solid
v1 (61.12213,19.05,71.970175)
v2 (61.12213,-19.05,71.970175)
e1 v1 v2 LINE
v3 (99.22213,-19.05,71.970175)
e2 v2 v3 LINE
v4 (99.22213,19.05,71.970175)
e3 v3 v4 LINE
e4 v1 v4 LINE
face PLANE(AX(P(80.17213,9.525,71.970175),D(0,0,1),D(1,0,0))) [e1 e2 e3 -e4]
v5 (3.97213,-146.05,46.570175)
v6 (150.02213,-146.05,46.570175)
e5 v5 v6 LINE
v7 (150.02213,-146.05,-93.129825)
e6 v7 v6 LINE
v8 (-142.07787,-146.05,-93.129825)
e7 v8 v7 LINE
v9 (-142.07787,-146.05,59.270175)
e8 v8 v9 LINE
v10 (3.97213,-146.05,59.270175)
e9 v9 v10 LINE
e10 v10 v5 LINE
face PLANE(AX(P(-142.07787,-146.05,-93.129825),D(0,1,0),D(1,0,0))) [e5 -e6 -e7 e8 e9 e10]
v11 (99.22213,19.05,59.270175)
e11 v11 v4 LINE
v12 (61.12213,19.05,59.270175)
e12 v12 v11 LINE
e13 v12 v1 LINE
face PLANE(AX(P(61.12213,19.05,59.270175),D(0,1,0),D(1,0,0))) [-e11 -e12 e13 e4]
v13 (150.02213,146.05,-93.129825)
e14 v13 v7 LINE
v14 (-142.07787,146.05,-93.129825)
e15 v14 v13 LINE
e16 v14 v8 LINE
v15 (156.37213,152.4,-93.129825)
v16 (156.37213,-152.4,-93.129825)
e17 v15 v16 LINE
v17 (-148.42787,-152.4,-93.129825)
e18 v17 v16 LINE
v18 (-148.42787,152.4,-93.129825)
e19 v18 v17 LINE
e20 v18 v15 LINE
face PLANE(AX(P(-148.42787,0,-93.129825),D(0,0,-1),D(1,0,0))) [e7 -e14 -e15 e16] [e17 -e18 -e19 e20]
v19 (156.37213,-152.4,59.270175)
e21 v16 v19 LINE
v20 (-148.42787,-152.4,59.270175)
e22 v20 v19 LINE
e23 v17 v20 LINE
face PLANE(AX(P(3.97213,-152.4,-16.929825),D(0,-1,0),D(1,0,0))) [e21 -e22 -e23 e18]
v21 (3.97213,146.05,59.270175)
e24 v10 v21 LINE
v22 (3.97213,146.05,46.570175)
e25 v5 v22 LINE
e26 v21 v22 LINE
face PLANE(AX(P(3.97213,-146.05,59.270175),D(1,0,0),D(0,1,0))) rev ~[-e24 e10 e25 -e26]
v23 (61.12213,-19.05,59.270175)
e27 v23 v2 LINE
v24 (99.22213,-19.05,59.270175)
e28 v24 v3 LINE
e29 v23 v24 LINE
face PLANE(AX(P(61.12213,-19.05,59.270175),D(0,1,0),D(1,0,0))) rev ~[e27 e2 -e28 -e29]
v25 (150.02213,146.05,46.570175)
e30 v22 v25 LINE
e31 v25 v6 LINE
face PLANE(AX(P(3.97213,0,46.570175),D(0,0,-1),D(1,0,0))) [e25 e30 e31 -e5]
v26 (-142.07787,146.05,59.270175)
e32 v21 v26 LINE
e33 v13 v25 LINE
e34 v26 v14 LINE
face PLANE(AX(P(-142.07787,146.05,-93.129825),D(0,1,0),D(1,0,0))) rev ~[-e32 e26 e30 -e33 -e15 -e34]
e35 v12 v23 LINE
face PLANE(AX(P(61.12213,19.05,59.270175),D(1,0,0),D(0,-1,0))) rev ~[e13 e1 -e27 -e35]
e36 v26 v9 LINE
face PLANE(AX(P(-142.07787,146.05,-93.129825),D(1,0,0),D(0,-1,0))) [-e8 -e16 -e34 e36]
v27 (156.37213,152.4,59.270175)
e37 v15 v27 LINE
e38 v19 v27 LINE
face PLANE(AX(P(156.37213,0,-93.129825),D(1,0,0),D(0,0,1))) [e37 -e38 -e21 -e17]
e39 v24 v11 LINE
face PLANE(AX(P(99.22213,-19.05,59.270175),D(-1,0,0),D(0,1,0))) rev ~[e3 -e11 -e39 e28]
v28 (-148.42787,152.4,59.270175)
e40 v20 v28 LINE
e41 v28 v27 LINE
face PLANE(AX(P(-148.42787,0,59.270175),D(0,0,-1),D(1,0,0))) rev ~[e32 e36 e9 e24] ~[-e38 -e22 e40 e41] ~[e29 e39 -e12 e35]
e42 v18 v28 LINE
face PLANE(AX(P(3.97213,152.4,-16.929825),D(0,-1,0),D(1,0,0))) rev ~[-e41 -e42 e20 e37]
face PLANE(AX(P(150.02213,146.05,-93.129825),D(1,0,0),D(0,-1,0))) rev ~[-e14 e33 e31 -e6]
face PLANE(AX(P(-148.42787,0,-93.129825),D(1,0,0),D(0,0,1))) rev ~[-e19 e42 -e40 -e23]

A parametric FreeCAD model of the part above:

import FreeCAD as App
import Part
import Sketcher
Q = App.Units.Quantity

doc = App.newDocument("Part")
body = doc.addObject("PartDesign::Body", "Body")

# Sketch on XZ plane
sketch1 = body.newObject("Sketcher::SketchObject", "Sketch")
sketch1.AttachmentSupport = (doc.getObject("XZ_Plane"), [""])
sketch1.MapMode = "FlatFace"
sketch1.addGeometry(Part.LineSegment(App.Vector(-148.42787, 59.270175, 0), App.Vector(-148.42787, -93.129825, 0)), False)
sketch1.addGeometry(Part.LineSegment(App.Vector(-148.42787, -93.129825, 0), App.Vector(156.37213, -93.129825, 0)), False)
sketch1.addGeometry(Part.LineSegment(App.Vector(156.37213, -93.129825, 0), App.Vector(156.37213, 59.270175, 0)), False)
sketch1.addGeometry(Part.LineSegment(App.Vector(156.37213, 59.270175, 0), App.Vector(-148.42787, 59.270175, 0)), False)
sketch1.addConstraint(Sketcher.Constraint("Coincident", 0, 2, 1, 1))
sketch1.addConstraint(Sketcher.Constraint("Coincident", 1, 2, 2, 1))
sketch1.addConstraint(Sketcher.Constraint("Coincident", 2, 2, 3, 1))
sketch1.addConstraint(Sketcher.Constraint("Coincident", 3, 2, 0, 1))
sketch1.addConstraint(Sketcher.Constraint("Vertical", 0))
sketch1.addConstraint(Sketcher.Constraint("Horizontal", 1))
sketch1.addConstraint(Sketcher.Constraint("Vertical", 2))
sketch1.addConstraint(Sketcher.Constraint("Horizontal", 3))
sketch1.addConstraint(Sketcher.Constraint("DistanceX", 1, 1, 1, 2, Q("12 in")))
sketch1.addConstraint(Sketcher.Constraint("DistanceY", 0, 2, 0, 1, Q("6 in")))
sketch1.addConstraint(Sketcher.Constraint("DistanceX", 0, 2, -1, 1, 148.42787))
sketch1.addConstraint(Sketcher.Constraint("DistanceY", 0, 2, -1, 1, 93.129825))
pad1 = body.newObject("PartDesign::Pad", "Pad")
pad1.Profile = sketch1
pad1.Length = Q("12 in")
pad1.Midplane = True

# Sketch on XY plane
sketch2 = body.newObject("Sketcher::SketchObject", "Sketch001")
sketch2.AttachmentSupport = (doc.getObject("XY_Plane"), [""])
sketch2.MapMode = "FlatFace"
sketch2.AttachmentOffset = App.Placement(App.Vector(0, 0, -93.129825), App.Rotation())
sketch2.addGeometry(Part.LineSegment(App.Vector(-142.07787, -146.05, 0), App.Vector(-142.07787, 146.05, 0)), False)
sketch2.addGeometry(Part.LineSegment(App.Vector(-142.07787, 146.05, 0), App.Vector(150.02213, 146.05, 0)), False)
sketch2.addGeometry(Part.LineSegment(App.Vector(150.02213, 146.05, 0), App.Vector(150.02213, -146.05, 0)), False)
sketch2.addGeometry(Part.LineSegment(App.Vector(150.02213, -146.05, 0), App.Vector(-142.07787, -146.05, 0)), False)
sketch2.addConstraint(Sketcher.Constraint("Coincident", 0, 2, 1, 1))
sketch2.addConstraint(Sketcher.Constraint("Coincident", 1, 2, 2, 1))
sketch2.addConstraint(Sketcher.Constraint("Coincident", 2, 2, 3, 1))
sketch2.addConstraint(Sketcher.Constraint("Coincident", 3, 2, 0, 1))
sketch2.addConstraint(Sketcher.Constraint("Vertical", 0))
sketch2.addConstraint(Sketcher.Constraint("Horizontal", 1))
sketch2.addConstraint(Sketcher.Constraint("Vertical", 2))
sketch2.addConstraint(Sketcher.Constraint("Horizontal", 3))
sketch2.addConstraint(Sketcher.Constraint("Equal", 3, 0))
sketch2.addConstraint(Sketcher.Constraint("DistanceX", 1, 1, 1, 2, Q("11.5 in")))
sketch2.addConstraint(Sketcher.Constraint("DistanceY", -1, 1, 0, 2, Q("5.75 in")))
sketch2.addConstraint(Sketcher.Constraint("DistanceX", 0, 2, -1, 1, 142.07787))
pocket1 = body.newObject("PartDesign::Pocket", "Pocket")
pocket1.Profile = sketch2
pocket1.Length = Q("5.5 in")
pocket1.Reversed = True

# Sketch on XY plane
sketch3 = body.newObject("Sketcher::SketchObject", "Sketch002")
sketch3.AttachmentSupport = (doc.getObject("XY_Plane"), [""])
sketch3.MapMode = "FlatFace"
sketch3.AttachmentOffset = App.Placement(App.Vector(0, 0, 59.270175), App.Rotation())
sketch3.addGeometry(Part.LineSegment(App.Vector(3.97213, 146.05, 0), App.Vector(-142.07787, 146.05, 0)), False)
sketch3.addGeometry(Part.LineSegment(App.Vector(-142.07787, 146.05, 0), App.Vector(-142.07787, -146.05, 0)), False)
sketch3.addGeometry(Part.LineSegment(App.Vector(-142.07787, -146.05, 0), App.Vector(3.97213, -146.05, 0)), False)
sketch3.addGeometry(Part.LineSegment(App.Vector(3.97213, -146.05, 0), App.Vector(3.97213, 146.05, 0)), False)
sketch3.addConstraint(Sketcher.Constraint("Coincident", 0, 2, 1, 1))
sketch3.addConstraint(Sketcher.Constraint("Coincident", 1, 2, 2, 1))
sketch3.addConstraint(Sketcher.Constraint("Coincident", 2, 2, 3, 1))
sketch3.addConstraint(Sketcher.Constraint("Coincident", 3, 2, 0, 1))
sketch3.addConstraint(Sketcher.Constraint("Horizontal", 0))
sketch3.addConstraint(Sketcher.Constraint("Vertical", 1))
sketch3.addConstraint(Sketcher.Constraint("Horizontal", 2))
sketch3.addConstraint(Sketcher.Constraint("Vertical", 3))
sketch3.addConstraint(Sketcher.Constraint("DistanceY", 1, 2, 1, 1, Q("11.5 in")))
sketch3.addConstraint(Sketcher.Constraint("DistanceX", 0, 2, 0, 1, Q("5.75 in")))
sketch3.addConstraint(Sketcher.Constraint("DistanceY", -1, 1, 0, 2, Q("5.75 in")))
sketch3.addConstraint(Sketcher.Constraint("DistanceX", 0, 2, -1, 1, 142.07787))
pocket2 = body.newObject("PartDesign::Pocket", "Pocket001")
pocket2.Profile = sketch3
pocket2.Length = Q("0.5 in")

# Sketch on XY plane
sketch4 = body.newObject("Sketcher::SketchObject", "Sketch003")
sketch4.AttachmentSupport = (doc.getObject("XY_Plane"), [""])
sketch4.MapMode = "FlatFace"
sketch4.AttachmentOffset = App.Placement(App.Vector(0, 0, 59.270175), App.Rotation())
sketch4.addGeometry(Part.LineSegment(App.Vector(61.12213, 19.05, 0), App.Vector(61.12213, -19.05, 0)), False)
sketch4.addGeometry(Part.LineSegment(App.Vector(61.12213, -19.05, 0), App.Vector(99.22213, -19.05, 0)), False)
sketch4.addGeometry(Part.LineSegment(App.Vector(99.22213, -19.05, 0), App.Vector(99.22213, 19.05, 0)), False)
sketch4.addGeometry(Part.LineSegment(App.Vector(99.22213, 19.05, 0), App.Vector(61.12213, 19.05, 0)), False)
sketch4.addConstraint(Sketcher.Constraint("Coincident", 0, 2, 1, 1))
sketch4.addConstraint(Sketcher.Constraint("Coincident", 1, 2, 2, 1))
sketch4.addConstraint(Sketcher.Constraint("Coincident", 2, 2, 3, 1))
sketch4.addConstraint(Sketcher.Constraint("Coincident", 3, 2, 0, 1))
sketch4.addConstraint(Sketcher.Constraint("Vertical", 0))
sketch4.addConstraint(Sketcher.Constraint("Horizontal", 1))
sketch4.addConstraint(Sketcher.Constraint("Vertical", 2))
sketch4.addConstraint(Sketcher.Constraint("Horizontal", 3))
sketch4.addConstraint(Sketcher.Constraint("Equal", 3, 0))
sketch4.addConstraint(Sketcher.Constraint("DistanceX", 1, 1, 1, 2, Q("1.5 in")))
sketch4.addConstraint(Sketcher.Constraint("DistanceY", 0, 2, -1, 1, Q("0.75 in")))
sketch4.addConstraint(Sketcher.Constraint("DistanceX", -1, 1, 0, 2, 61.12213))
pad2 = body.newObject("PartDesign::Pad", "Pad001")
pad2.Profile = sketch4
pad2.Length = Q("0.5 in")

doc.recompute()
